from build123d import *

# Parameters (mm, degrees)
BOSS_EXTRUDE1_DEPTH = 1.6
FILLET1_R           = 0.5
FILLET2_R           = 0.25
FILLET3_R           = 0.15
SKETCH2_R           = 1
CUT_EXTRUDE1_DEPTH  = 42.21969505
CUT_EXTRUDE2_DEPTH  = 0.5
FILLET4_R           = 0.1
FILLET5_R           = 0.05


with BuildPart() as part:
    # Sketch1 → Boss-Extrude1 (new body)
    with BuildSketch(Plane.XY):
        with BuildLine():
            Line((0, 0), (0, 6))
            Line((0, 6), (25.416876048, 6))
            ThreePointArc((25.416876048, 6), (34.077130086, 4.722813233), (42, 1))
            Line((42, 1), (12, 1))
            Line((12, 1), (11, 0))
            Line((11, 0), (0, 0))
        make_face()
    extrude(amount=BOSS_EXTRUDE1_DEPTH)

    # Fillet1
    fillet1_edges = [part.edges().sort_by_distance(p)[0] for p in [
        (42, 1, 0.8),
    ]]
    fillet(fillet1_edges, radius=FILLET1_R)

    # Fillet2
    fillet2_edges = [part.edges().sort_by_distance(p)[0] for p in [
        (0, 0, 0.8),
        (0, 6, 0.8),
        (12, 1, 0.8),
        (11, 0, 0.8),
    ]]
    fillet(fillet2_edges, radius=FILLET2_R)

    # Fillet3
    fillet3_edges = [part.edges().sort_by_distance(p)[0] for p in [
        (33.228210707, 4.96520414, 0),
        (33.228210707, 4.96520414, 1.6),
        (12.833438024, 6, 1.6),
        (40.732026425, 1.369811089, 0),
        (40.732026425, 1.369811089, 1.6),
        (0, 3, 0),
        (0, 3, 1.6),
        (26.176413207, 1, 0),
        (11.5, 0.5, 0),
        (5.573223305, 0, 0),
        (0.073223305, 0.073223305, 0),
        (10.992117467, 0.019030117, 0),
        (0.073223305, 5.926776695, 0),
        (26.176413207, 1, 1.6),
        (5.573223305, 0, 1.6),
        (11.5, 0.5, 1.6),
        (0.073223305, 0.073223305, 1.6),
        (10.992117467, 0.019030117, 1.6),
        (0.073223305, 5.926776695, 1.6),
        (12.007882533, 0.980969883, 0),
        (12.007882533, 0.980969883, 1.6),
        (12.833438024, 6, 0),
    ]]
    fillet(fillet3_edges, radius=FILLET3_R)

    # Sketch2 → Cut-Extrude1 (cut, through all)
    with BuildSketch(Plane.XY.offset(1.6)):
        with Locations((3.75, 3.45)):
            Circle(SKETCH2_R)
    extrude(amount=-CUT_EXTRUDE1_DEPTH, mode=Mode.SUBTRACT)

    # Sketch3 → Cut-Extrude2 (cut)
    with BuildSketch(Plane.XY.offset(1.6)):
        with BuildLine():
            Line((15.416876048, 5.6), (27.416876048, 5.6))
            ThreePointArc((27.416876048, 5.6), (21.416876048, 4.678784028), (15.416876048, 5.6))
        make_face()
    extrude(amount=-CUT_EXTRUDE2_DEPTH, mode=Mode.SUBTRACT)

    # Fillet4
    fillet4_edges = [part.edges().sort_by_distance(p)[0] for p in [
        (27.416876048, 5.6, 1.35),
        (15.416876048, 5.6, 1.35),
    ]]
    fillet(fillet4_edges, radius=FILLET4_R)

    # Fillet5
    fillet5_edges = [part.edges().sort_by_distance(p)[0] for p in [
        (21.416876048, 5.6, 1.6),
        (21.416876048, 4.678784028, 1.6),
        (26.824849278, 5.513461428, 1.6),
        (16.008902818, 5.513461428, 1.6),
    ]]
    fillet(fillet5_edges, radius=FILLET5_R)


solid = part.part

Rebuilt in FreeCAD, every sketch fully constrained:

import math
import FreeCAD as App
import Part
import Sketcher
Q = App.Units.Quantity


def edges_at(feature, points):
    """Names of the edges that pass closest to the given points."""
    edges = feature.Shape.Edges
    near = lambda p: min(range(len(edges)), key=lambda i: edges[i].distToShape(Part.Vertex(*p))[0])
    return sorted({f"Edge{near(p) + 1}" for p in points})

doc = App.newDocument("Part")
body = doc.addObject("PartDesign::Body", "Body")

sketch1 = doc.addObject("Sketcher::SketchObject", "Sketch")
body.addObject(sketch1)
sketch1.AttachmentSupport = (doc.XY_Plane, [""])
sketch1.MapMode = "FlatFace"
sketch1.addGeometry([
    Part.LineSegment(App.Vector(0, 6, 0), App.Vector(0, 0, 0)),
    Part.LineSegment(App.Vector(0, 0, 0), App.Vector(11, 0, 0)),
    Part.LineSegment(App.Vector(11, 0, 0), App.Vector(12, 1, 0)),
    Part.LineSegment(App.Vector(12, 1, 0), App.Vector(42, 1, 0)),
    Part.ArcOfCircle(Part.Circle(App.Vector(25.4, -24, 0), App.Vector(0, 0, 1), 30), math.radians(56), math.radians(90)),
    Part.LineSegment(App.Vector(25.4, 6, 0), App.Vector(0, 6, 0)),
], False)
sketch1.addConstraint([
    Sketcher.Constraint("Coincident", 0, 2, 1, 1),
    Sketcher.Constraint("Coincident", 1, 2, 2, 1),
    Sketcher.Constraint("Coincident", 2, 2, 3, 1),
    Sketcher.Constraint("Coincident", 3, 2, 4, 1),
    Sketcher.Constraint("Tangent", 4, 2, 5, 1),
    Sketcher.Constraint("Coincident", 5, 2, 0, 1),
    Sketcher.Constraint("Vertical", 0),
    Sketcher.Constraint("Horizontal", 1),
    Sketcher.Constraint("Horizontal", 3),
    Sketcher.Constraint("Horizontal", 5),
    Sketcher.Constraint("Coincident", 0, 2, -1, 1),
    Sketcher.Constraint("Radius", 4, 30.0),
    Sketcher.Constraint("DistanceX", 1, 1, 1, 2, 11.0),
    Sketcher.Constraint("DistanceX", 3, 1, 3, 2, 30.0),
    Sketcher.Constraint("DistanceY", 0, 2, 0, 1, 6.0),
    Sketcher.Constraint("Angle", 2, Q("45 deg")),
    Sketcher.Constraint("DistanceX", -1, 1, 2, 2, 12.0),
])
pad1 = doc.addObject("PartDesign::Pad", "Pad")
body.addObject(pad1)
pad1.Profile = sketch1
pad1.Length = 1.6
doc.recompute()

fillet = doc.addObject("PartDesign::Fillet", "Fillet")
body.addObject(fillet)
fillet.Base = (pad1, edges_at(pad1, [(42, 1, 0.8)]))
fillet.Radius = 0.5
doc.recompute()

fillet2 = doc.addObject("PartDesign::Fillet", "Fillet001")
body.addObject(fillet2)
fillet2.Base = (fillet, edges_at(fillet, [
    (0, 0, 0.8),
    (0, 6, 0.8),
    (12, 1, 0.8),
    (11, 0, 0.8),
]))
fillet2.Radius = 0.25
doc.recompute()

fillet3 = doc.addObject("PartDesign::Fillet", "Fillet002")
body.addObject(fillet3)
fillet3.Base = (fillet2, edges_at(fillet2, [
    (33.228, 4.965, 0),
    (33.228, 4.965, 1.6),
    (12.833, 6, 1.6),
    (40.732, 1.37, 0),
    (40.732, 1.37, 1.6),
    (0, 3, 0),
    (0, 3, 1.6),
    (26.176, 1, 0),
    (11.5, 0.5, 0),
    (5.573, 0, 0),
    (0.073, 0.073, 0),
    (10.992, 0.019, 0),
    (0.073, 5.927, 0),
    (26.176, 1, 1.6),
    (5.573, 0, 1.6),
    (11.5, 0.5, 1.6),
    (0.073, 0.073, 1.6),
    (10.992, 0.019, 1.6),
    (0.073, 5.927, 1.6),
    (12.008, 0.981, 0),
    (12.008, 0.981, 1.6),
    (12.833, 6, 0),
]))
fillet3.Radius = 0.15

sketch2 = doc.addObject("Sketcher::SketchObject", "Sketch001")
body.addObject(sketch2)
sketch2.AttachmentSupport = (doc.XY_Plane, [""])
sketch2.MapMode = "FlatFace"
sketch2.AttachmentOffset = App.Placement(App.Vector(0, 0, 1.6), App.Rotation())
sketch2.addGeometry(Part.Circle(App.Vector(3.8, 3.5, 0), App.Vector(0, 0, 1), 1), False)
sketch2.addConstraint([
    Sketcher.Constraint("Diameter", 0, 2.0),
    Sketcher.Constraint("DistanceX", -1, 1, 0, 3, 3.75),
    Sketcher.Constraint("DistanceY", -1, 1, 0, 3, 3.45),
])
pocket1 = doc.addObject("PartDesign::Pocket", "Pocket")
body.addObject(pocket1)
pocket1.Profile = sketch2
pocket1.Type = "ThroughAll"

sketch3 = doc.addObject("Sketcher::SketchObject", "Sketch002")
body.addObject(sketch3)
sketch3.AttachmentSupport = (doc.XY_Plane, [""])
sketch3.MapMode = "FlatFace"
sketch3.AttachmentOffset = App.Placement(App.Vector(0, 0, 1.6), App.Rotation())
sketch3.addGeometry([
    Part.LineSegment(App.Vector(27, 6, 0), App.Vector(15, 6, 0)),
    Part.ArcOfCircle(Part.Circle(App.Vector(21, 25, 0), App.Vector(0, 0, 1), 20), math.radians(-107), math.radians(-73)),
], False)
sketch3.addConstraint([
    Sketcher.Constraint("Coincident", 0, 1, 1, 2),
    Sketcher.Constraint("Coincident", 1, 1, 0, 2),
    Sketcher.Constraint("Horizontal", 0),
    Sketcher.Constraint("Radius", 1, 20.0),
    Sketcher.Constraint("DistanceX", 0, 2, 0, 1, 12.0),
    Sketcher.Constraint("DistanceY", -1, 1, 0, 1, 5.6),
    Sketcher.Constraint("DistanceX", -1, 1, 1, 3, 21.416876),
])
pocket2 = doc.addObject("PartDesign::Pocket", "Pocket001")
body.addObject(pocket2)
pocket2.Profile = sketch3
pocket2.Length = 0.5
doc.recompute()

fillet4 = doc.addObject("PartDesign::Fillet", "Fillet003")
body.addObject(fillet4)
fillet4.Base = (pocket2, edges_at(pocket2, [(27.417, 5.6, 1.35), (15.417, 5.6, 1.35)]))
fillet4.Radius = 0.1
doc.recompute()

fillet5 = doc.addObject("PartDesign::Fillet", "Fillet004")
body.addObject(fillet5)
fillet5.Base = (fillet4, edges_at(fillet4, [
    (21.417, 5.6, 1.6),
    (21.417, 4.679, 1.6),
    (26.825, 5.513, 1.6),
    (16.009, 5.513, 1.6),
]))
fillet5.Radius = 0.05

doc.recompute()
